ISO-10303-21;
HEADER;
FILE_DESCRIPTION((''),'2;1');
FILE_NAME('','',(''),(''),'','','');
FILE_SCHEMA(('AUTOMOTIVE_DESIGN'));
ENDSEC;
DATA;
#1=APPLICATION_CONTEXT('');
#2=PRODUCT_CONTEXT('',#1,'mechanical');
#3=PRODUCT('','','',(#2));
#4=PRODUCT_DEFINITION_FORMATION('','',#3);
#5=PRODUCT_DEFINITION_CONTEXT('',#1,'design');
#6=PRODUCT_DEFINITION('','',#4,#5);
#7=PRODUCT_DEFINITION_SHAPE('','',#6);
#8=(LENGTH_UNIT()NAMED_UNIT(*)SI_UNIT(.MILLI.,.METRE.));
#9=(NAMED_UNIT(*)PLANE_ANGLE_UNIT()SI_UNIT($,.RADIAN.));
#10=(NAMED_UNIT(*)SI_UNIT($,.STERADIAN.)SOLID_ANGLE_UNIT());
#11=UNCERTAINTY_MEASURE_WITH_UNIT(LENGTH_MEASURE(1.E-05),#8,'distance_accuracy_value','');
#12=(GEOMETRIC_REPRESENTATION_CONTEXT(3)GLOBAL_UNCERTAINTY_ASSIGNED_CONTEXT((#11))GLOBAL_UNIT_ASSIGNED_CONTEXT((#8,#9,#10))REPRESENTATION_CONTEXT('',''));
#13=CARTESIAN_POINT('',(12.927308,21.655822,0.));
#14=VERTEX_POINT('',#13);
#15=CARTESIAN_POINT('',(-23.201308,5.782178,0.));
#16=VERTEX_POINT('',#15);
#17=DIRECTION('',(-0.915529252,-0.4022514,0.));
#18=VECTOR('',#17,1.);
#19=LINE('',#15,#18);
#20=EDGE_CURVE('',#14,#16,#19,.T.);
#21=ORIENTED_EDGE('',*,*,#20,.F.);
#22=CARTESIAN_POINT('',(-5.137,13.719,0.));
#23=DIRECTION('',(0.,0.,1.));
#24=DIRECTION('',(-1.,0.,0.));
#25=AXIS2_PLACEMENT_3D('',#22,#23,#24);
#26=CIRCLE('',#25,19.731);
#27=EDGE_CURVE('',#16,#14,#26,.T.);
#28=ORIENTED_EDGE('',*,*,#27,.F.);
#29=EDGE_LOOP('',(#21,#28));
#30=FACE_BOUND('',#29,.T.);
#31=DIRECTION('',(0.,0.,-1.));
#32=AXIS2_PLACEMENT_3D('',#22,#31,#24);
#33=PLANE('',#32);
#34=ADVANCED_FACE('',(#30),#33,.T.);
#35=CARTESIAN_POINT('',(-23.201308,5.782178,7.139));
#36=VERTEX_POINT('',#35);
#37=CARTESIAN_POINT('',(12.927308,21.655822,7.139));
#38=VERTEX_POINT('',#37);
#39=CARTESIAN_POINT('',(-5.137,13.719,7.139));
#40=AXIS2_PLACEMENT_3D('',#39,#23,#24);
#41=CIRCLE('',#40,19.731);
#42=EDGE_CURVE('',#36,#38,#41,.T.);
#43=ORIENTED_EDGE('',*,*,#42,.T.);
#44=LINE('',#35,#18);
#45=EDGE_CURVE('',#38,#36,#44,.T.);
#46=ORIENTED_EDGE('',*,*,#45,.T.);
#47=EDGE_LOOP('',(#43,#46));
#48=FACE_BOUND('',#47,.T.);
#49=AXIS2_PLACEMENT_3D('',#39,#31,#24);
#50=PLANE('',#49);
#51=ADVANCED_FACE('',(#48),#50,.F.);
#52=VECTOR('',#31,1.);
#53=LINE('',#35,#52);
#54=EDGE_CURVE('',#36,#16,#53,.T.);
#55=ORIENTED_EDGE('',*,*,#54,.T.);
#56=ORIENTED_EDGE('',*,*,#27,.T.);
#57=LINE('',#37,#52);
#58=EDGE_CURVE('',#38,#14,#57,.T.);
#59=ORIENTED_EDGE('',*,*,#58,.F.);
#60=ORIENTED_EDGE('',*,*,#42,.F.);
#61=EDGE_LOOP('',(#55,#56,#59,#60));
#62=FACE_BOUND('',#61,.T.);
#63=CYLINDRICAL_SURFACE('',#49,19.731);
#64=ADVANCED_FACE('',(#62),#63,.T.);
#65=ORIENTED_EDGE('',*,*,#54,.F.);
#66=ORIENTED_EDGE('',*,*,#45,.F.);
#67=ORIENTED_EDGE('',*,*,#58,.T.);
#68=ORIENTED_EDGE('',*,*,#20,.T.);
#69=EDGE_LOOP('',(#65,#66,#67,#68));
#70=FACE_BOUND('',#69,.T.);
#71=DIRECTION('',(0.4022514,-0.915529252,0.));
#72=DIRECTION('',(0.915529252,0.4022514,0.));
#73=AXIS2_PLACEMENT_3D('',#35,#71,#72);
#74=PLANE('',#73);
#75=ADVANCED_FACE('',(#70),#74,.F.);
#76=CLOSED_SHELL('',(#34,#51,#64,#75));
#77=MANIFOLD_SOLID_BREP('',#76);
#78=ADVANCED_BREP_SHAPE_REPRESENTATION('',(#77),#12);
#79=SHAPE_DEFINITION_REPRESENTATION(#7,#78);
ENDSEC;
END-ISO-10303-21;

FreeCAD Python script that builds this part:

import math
import FreeCAD as App
import Part
import Sketcher

V = App.Vector
Q = App.Units.Quantity

doc = App.newDocument("Part")
body = doc.addObject("PartDesign::Body", "Body")

sketch1 = doc.addObject("Sketcher::SketchObject", "Sketch")
body.addObject(sketch1)
sketch1.AttachmentSupport = (doc.XY_Plane, [""])
sketch1.MapMode = "FlatFace"
sketch1.addGeometry([
    Part.LineSegment(V(13, 22, 0), V(-23, 6, 0)),
    Part.ArcOfCircle(Part.Circle(V(-5, 14, 0), V(0, 0, 1), 20), math.radians(-156), math.radians(24)),
], False)
sketch1.addConstraint([
    Sketcher.Constraint("Coincident", 0, 1, 1, 2),
    Sketcher.Constraint("Coincident", 1, 1, 0, 2),
    Sketcher.Constraint("Radius", 1, Q("19.731 mm")),
    Sketcher.Constraint("DistanceX", 1, 3, -1, 1, Q("5.137 mm")),
    Sketcher.Constraint("DistanceY", -1, 1, 1, 3, Q("13.719 mm")),
    Sketcher.Constraint("DistanceX", -1, 1, 0, 1, Q("12.927308 mm")),
    Sketcher.Constraint("DistanceX", 1, 1, -1, 1, Q("23.201308 mm")),
])
pad1 = doc.addObject("PartDesign::Pad", "Pad")
body.addObject(pad1)
pad1.Profile = sketch1
pad1.Length = 7.139

doc.recompute()
